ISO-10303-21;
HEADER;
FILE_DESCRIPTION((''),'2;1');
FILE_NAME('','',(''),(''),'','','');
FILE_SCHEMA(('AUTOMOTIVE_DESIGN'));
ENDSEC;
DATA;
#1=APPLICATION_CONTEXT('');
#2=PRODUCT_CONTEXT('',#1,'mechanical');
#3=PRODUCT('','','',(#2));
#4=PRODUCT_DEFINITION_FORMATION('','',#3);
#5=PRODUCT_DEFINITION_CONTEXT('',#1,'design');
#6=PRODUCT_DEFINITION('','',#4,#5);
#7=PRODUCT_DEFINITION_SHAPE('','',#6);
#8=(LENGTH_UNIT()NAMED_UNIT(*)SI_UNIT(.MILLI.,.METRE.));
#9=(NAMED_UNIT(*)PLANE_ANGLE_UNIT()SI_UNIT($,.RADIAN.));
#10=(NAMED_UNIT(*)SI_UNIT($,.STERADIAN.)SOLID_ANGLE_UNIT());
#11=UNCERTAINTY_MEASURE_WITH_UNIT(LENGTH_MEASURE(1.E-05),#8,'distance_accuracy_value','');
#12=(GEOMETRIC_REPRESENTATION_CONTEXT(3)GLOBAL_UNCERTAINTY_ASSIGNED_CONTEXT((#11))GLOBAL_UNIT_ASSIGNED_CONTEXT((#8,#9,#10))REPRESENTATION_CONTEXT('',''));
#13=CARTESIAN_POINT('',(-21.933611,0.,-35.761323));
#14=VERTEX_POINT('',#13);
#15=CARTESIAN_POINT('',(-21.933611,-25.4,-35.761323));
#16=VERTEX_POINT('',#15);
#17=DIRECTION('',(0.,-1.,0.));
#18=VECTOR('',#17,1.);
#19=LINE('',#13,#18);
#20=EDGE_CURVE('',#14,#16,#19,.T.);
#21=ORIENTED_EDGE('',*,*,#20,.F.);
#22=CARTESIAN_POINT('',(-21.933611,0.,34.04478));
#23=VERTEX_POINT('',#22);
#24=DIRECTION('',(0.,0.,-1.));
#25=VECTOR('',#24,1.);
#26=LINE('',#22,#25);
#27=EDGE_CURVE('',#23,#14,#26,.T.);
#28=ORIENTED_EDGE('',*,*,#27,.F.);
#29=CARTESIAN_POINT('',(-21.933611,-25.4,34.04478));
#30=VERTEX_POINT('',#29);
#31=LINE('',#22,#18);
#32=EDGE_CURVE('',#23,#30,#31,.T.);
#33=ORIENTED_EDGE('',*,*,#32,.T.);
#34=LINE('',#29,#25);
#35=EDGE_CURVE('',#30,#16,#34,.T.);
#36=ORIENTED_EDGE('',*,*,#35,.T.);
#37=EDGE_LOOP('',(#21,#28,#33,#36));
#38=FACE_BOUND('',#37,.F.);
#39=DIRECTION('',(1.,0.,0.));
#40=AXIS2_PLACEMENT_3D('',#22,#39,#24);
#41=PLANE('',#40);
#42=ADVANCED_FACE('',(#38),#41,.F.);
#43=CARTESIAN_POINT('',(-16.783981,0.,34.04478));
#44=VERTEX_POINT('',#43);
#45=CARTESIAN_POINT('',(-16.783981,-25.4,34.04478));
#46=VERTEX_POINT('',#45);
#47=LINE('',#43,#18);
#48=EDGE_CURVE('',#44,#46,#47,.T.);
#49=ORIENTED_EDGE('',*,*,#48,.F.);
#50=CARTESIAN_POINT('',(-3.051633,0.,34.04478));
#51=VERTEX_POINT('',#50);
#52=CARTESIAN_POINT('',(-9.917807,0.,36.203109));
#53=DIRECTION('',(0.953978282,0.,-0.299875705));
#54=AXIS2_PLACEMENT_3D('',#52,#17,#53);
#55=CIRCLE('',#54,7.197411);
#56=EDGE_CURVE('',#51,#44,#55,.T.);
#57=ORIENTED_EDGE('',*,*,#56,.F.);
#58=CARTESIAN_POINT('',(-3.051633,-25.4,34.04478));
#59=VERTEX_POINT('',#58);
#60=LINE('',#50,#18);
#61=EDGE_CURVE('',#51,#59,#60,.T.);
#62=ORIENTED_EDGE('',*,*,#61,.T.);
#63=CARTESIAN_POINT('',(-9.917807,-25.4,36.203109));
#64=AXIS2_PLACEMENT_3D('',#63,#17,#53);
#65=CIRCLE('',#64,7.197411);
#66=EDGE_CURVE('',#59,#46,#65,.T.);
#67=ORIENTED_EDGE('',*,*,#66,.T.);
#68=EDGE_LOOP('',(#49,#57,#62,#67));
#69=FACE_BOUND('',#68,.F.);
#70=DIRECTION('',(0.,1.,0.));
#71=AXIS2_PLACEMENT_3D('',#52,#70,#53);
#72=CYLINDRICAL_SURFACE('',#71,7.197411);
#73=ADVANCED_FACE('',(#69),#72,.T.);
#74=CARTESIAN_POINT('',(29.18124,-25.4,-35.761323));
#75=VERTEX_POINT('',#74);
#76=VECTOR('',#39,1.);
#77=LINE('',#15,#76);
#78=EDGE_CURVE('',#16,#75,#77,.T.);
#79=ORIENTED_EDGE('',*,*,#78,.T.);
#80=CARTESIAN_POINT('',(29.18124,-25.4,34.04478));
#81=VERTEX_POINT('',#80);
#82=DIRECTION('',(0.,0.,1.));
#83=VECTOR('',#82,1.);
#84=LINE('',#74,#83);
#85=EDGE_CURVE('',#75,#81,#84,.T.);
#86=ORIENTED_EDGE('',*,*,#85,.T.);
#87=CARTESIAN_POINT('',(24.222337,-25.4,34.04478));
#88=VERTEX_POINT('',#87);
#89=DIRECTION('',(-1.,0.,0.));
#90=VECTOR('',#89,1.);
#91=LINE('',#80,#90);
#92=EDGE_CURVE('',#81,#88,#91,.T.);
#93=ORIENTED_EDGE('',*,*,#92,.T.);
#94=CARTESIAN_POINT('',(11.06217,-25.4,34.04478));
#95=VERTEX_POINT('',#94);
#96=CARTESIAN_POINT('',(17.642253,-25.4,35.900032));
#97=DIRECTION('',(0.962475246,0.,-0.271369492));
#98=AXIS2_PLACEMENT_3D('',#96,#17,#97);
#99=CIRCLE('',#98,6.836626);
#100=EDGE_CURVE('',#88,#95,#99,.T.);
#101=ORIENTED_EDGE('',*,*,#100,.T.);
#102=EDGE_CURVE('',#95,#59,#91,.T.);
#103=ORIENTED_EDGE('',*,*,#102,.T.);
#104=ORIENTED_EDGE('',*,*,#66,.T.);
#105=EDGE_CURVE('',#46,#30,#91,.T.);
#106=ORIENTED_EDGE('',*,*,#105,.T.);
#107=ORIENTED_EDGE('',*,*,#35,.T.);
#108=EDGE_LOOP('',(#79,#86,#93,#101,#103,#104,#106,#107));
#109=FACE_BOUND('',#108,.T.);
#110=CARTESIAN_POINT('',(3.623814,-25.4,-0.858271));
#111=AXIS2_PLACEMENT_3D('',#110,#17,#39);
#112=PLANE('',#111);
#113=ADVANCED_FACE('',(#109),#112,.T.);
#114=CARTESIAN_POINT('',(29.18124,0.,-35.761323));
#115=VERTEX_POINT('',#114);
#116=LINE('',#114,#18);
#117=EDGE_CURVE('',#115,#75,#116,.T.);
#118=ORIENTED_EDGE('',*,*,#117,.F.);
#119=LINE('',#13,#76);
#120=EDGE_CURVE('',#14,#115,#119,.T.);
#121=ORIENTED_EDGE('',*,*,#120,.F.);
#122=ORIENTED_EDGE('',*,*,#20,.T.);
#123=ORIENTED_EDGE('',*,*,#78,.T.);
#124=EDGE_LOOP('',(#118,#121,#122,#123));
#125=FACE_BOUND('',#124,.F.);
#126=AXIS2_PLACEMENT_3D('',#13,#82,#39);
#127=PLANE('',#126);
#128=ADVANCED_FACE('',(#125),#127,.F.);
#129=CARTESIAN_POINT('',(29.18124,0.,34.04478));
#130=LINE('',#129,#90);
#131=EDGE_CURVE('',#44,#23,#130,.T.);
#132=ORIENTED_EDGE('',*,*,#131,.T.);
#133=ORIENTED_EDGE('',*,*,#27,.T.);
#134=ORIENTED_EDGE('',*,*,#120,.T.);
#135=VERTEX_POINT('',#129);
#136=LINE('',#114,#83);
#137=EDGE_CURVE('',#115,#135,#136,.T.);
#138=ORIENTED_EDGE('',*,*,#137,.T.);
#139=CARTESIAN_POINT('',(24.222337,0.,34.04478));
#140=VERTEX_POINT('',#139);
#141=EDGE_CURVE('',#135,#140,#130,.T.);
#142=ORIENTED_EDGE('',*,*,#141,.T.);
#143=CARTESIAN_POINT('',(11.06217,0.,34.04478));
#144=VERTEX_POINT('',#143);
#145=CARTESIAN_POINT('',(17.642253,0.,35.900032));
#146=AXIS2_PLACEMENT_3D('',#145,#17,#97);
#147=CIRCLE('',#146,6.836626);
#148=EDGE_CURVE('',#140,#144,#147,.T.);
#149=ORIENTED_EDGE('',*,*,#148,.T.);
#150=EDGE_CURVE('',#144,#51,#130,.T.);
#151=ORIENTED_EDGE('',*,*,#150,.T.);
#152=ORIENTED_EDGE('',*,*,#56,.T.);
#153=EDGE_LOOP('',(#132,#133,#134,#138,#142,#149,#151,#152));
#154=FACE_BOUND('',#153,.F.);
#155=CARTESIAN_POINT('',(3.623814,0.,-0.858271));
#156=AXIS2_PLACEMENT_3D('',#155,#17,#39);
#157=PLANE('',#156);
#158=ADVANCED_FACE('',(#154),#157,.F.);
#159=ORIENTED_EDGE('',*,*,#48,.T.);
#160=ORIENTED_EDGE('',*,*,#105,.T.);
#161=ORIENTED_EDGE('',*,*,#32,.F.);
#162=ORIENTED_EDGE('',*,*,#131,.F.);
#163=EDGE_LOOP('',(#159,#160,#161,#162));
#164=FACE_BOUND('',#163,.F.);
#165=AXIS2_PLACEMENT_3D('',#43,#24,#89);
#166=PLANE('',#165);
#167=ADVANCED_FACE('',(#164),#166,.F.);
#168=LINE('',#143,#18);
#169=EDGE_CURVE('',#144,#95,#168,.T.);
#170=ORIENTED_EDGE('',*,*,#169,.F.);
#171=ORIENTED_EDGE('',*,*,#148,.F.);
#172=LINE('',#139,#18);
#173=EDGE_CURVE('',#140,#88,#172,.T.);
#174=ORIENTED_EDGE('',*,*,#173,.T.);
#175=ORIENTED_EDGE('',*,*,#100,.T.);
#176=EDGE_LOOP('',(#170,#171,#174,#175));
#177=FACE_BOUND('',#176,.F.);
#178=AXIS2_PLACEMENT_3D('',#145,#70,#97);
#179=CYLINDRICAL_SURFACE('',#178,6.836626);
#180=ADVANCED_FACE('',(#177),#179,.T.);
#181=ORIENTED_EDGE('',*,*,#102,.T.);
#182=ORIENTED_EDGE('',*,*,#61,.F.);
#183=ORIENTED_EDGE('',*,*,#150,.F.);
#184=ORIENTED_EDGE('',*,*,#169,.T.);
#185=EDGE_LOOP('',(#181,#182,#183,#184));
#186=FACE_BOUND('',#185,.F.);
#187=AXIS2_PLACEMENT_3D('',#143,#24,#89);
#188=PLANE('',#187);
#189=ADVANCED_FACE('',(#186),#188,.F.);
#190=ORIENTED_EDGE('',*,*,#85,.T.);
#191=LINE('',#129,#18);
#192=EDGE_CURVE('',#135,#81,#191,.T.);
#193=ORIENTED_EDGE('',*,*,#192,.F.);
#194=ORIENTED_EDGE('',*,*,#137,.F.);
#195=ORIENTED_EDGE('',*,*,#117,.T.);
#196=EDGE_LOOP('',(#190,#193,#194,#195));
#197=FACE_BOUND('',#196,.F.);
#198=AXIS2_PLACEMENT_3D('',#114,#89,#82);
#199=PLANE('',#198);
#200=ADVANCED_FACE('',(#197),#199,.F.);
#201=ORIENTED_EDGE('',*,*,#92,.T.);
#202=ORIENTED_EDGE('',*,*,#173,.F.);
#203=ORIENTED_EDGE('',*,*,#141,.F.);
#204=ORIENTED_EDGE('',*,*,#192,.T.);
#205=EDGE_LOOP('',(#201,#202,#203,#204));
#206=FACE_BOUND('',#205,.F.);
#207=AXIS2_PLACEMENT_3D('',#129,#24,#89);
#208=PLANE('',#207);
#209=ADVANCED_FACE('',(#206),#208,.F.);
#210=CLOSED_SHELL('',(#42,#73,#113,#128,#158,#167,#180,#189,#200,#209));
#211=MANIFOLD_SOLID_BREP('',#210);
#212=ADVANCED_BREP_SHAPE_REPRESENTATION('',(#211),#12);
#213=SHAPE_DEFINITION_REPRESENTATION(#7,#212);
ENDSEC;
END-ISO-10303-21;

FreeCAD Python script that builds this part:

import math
import FreeCAD as App
import Part
import Sketcher
Q = App.Units.Quantity

doc = App.newDocument("Part")
body = doc.addObject("PartDesign::Body", "Body")

# Sketch on XZ plane
sketch1 = body.newObject("Sketcher::SketchObject", "Sketch")
sketch1.AttachmentSupport = (doc.getObject("XZ_Plane"), [""])
sketch1.MapMode = "FlatFace"
sketch1.addGeometry(Part.LineSegment(App.Vector(-21.9, 34, 0), App.Vector(-21.9, -35.8, 0)), False)
sketch1.addGeometry(Part.LineSegment(App.Vector(-21.9, -35.8, 0), App.Vector(29.2, -35.8, 0)), False)
sketch1.addGeometry(Part.LineSegment(App.Vector(29.2, -35.8, 0), App.Vector(29.2, 34, 0)), False)
sketch1.addGeometry(Part.LineSegment(App.Vector(29.2, 34, 0), App.Vector(24.2, 34, 0)), False)
sketch1.addGeometry(Part.ArcOfCircle(Part.Circle(App.Vector(17.6, 35.9, 0), App.Vector(0, 0, 1), 6.8), math.radians(-16), math.radians(196)), False)
sketch1.addGeometry(Part.LineSegment(App.Vector(11.1, 34, 0), App.Vector(-3.1, 34, 0)), False)
sketch1.addGeometry(Part.ArcOfCircle(Part.Circle(App.Vector(-9.9, 36.2, 0), App.Vector(0, 0, 1), 7.2), math.radians(-17), math.radians(197)), False)
sketch1.addGeometry(Part.LineSegment(App.Vector(-16.8, 34, 0), App.Vector(-21.9, 34, 0)), False)
sketch1.addConstraint(Sketcher.Constraint("Coincident", 0, 2, 1, 1))
sketch1.addConstraint(Sketcher.Constraint("Coincident", 1, 2, 2, 1))
sketch1.addConstraint(Sketcher.Constraint("Coincident", 2, 2, 3, 1))
sketch1.addConstraint(Sketcher.Constraint("Coincident", 3, 2, 4, 1))
sketch1.addConstraint(Sketcher.Constraint("Coincident", 4, 2, 5, 1))
sketch1.addConstraint(Sketcher.Constraint("Coincident", 5, 2, 6, 1))
sketch1.addConstraint(Sketcher.Constraint("Coincident", 6, 2, 7, 1))
sketch1.addConstraint(Sketcher.Constraint("Coincident", 7, 2, 0, 1))
sketch1.addConstraint(Sketcher.Constraint("Vertical", 0))
sketch1.addConstraint(Sketcher.Constraint("Horizontal", 1))
sketch1.addConstraint(Sketcher.Constraint("Vertical", 2))
sketch1.addConstraint(Sketcher.Constraint("Horizontal", 3))
sketch1.addConstraint(Sketcher.Constraint("Horizontal", 5))
sketch1.addConstraint(Sketcher.Constraint("Horizontal", 7))
sketch1.addConstraint(Sketcher.Constraint("Horizontal", 3, 2, 4, 2))
sketch1.addConstraint(Sketcher.Constraint("Horizontal", 5, 2, 6, 2))
sketch1.addConstraint(Sketcher.Constraint("Radius", 6, 7.197411))
sketch1.addConstraint(Sketcher.Constraint("Radius", 4, 6.836626))
sketch1.addConstraint(Sketcher.Constraint("DistanceX", 6, 3, 3, 2, Q("1.3441002 in")))
sketch1.addConstraint(Sketcher.Constraint("DistanceX", 1, 1, 1, 2, 51.114851))
sketch1.addConstraint(Sketcher.Constraint("DistanceX", 7, 2, 7, 1, 5.14963))
sketch1.addConstraint(Sketcher.Constraint("DistanceX", 3, 2, 3, 1, 4.958903))
sketch1.addConstraint(Sketcher.Constraint("DistanceX", 5, 2, 5, 1, 14.113803))
sketch1.addConstraint(Sketcher.Constraint("DistanceY", 0, 2, 0, 1, 69.806103))
sketch1.addConstraint(Sketcher.Constraint("DistanceY", -1, 1, 4, 3, 35.900032))
sketch1.addConstraint(Sketcher.Constraint("DistanceX", 0, 2, -1, 1, 21.933611))
pad1 = body.newObject("PartDesign::Pad", "Pad")
pad1.Profile = sketch1
pad1.Length = Q("1 in")

doc.recompute()
